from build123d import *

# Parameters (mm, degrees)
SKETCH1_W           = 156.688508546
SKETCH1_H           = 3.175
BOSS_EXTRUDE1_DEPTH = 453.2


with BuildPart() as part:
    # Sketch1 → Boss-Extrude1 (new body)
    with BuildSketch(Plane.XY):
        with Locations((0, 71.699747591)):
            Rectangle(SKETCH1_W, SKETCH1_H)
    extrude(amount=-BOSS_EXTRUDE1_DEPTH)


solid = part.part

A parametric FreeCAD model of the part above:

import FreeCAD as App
import Part
import Sketcher

V = App.Vector


def add_polygon(sketch, points):
    """Adds a closed chain of lines whose ends are joined by coincident constraints."""
    first, n = sketch.GeometryCount, len(points)
    for a, b in zip(points, points[1:] + points[:1]):
        sketch.addGeometry(Part.LineSegment(App.Vector(*a, 0), App.Vector(*b, 0)), False)
    for i in range(n):
        sketch.addConstraint(Sketcher.Constraint("Coincident", first + i, 2, first + (i + 1) % n, 1))

doc = App.newDocument("Part")
params = doc.addObject("Spreadsheet::Sheet", "Params")
for row, (alias, value) in enumerate([
    ("pad1_length", "453.2 mm"),
], start=1):
    params.set(f"A{row}", alias)
    params.set(f"B{row}", "=" + value)
    params.setAlias(f"B{row}", alias)

body = doc.addObject("PartDesign::Body", "Body")

# Sketch on XY plane
sketch1 = body.newObject("Sketcher::SketchObject", "Sketch")
sketch1.AttachmentSupport = (doc.getObject("XY_Plane"), [""])
sketch1.MapMode = "FlatFace"
add_polygon(sketch1, [(-78.3, 73.3), (-78.3, 70.1), (78.3, 70.1), (78.3, 73.3)])  # lines 0-3
sketch1.addConstraint(Sketcher.Constraint("Vertical", 0))
sketch1.addConstraint(Sketcher.Constraint("Horizontal", 1))
sketch1.addConstraint(Sketcher.Constraint("Vertical", 2))
sketch1.addConstraint(Sketcher.Constraint("Horizontal", 3))
sketch1.addConstraint(Sketcher.Constraint("DistanceY", 0, 2, 0, 1, 3.175))
sketch1.addConstraint(Sketcher.Constraint("DistanceX", 1, 1, 1, 2, 156.688509))
sketch1.addConstraint(Sketcher.Constraint("DistanceX", 0, 2, -1, 1, 78.344254))
sketch1.addConstraint(Sketcher.Constraint("DistanceY", -1, 1, 0, 2, 70.112248))
pad1 = body.newObject("PartDesign::Pad", "Pad")
pad1.Profile = sketch1
pad1.setExpression("Length", "Params.pad1_length")
pad1.Reversed = True

doc.recompute()
